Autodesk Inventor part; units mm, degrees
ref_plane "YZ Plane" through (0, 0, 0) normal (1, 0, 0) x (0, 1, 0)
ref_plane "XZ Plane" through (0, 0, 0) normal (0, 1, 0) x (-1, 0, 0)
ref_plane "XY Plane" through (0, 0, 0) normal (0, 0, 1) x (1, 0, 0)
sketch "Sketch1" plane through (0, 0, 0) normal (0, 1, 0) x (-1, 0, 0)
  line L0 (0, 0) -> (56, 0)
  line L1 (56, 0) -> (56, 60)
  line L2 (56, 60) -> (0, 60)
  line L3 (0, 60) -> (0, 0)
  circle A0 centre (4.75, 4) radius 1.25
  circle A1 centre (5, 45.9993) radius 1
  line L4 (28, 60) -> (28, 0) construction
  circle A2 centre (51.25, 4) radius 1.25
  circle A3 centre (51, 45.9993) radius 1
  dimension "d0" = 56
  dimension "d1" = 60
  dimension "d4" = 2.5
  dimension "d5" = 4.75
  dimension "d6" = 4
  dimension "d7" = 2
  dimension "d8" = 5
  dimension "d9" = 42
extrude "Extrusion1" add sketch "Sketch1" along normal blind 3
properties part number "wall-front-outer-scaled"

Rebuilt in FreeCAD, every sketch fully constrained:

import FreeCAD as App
import Part
import Sketcher


def add_polygon(sketch, points):
    """Adds a closed chain of lines whose ends are joined by coincident constraints."""
    first, n = sketch.GeometryCount, len(points)
    for a, b in zip(points, points[1:] + points[:1]):
        sketch.addGeometry(Part.LineSegment(App.Vector(*a, 0), App.Vector(*b, 0)), False)
    for i in range(n):
        sketch.addConstraint(Sketcher.Constraint("Coincident", first + i, 2, first + (i + 1) % n, 1))

doc = App.newDocument("Part")
body = doc.addObject("PartDesign::Body", "Body")

sketch1 = body.newObject("Sketcher::SketchObject", "Sketch")
sketch1.AttachmentSupport = (doc.getObject("XZ_Plane"), [""])
sketch1.MapMode = "FlatFace"
add_polygon(sketch1, [(0, 60), (0, 0), (-56, 0), (-56, 60)])
sketch1.addGeometry(Part.Circle(App.Vector(-4.8, 4, 0), App.Vector(0, 0, 1), 1.2), False)
sketch1.addGeometry(Part.Circle(App.Vector(-51.2, 4, 0), App.Vector(0, 0, 1), 1.2), False)
sketch1.addGeometry(Part.Circle(App.Vector(-5, 46, 0), App.Vector(0, 0, 1), 1), False)
sketch1.addGeometry(Part.Circle(App.Vector(-51, 46, 0), App.Vector(0, 0, 1), 1), False)
sketch1.addConstraint(Sketcher.Constraint("Vertical", 0))
sketch1.addConstraint(Sketcher.Constraint("Horizontal", 1))
sketch1.addConstraint(Sketcher.Constraint("Vertical", 2))
sketch1.addConstraint(Sketcher.Constraint("Horizontal", 3))
sketch1.addConstraint(Sketcher.Constraint("Coincident", 0, 2, -1, 1))
sketch1.addConstraint(Sketcher.Constraint("Equal", 4, 5))
sketch1.addConstraint(Sketcher.Constraint("Equal", 6, 7))
sketch1.addConstraint(Sketcher.Constraint("Horizontal", 4, 3, 5, 3))
sketch1.addConstraint(Sketcher.Constraint("Horizontal", 6, 3, 7, 3))
sketch1.addConstraint(Sketcher.Constraint("Diameter", 6, 2.0))
sketch1.addConstraint(Sketcher.Constraint("Diameter", 4, 2.5))
sketch1.addConstraint(Sketcher.Constraint("DistanceX", 1, 2, 1, 1, 56.0))
sketch1.addConstraint(Sketcher.Constraint("DistanceY", 0, 2, 0, 1, 60.0))
sketch1.addConstraint(Sketcher.Constraint("DistanceY", -1, 1, 4, 3, 4.0))
sketch1.addConstraint(Sketcher.Constraint("DistanceX", 6, 3, -1, 1, 5.0))
sketch1.addConstraint(Sketcher.Constraint("DistanceX", 1, 2, 7, 3, 5.0))
sketch1.addConstraint(Sketcher.Constraint("DistanceX", 4, 3, -1, 1, 4.75))
sketch1.addConstraint(Sketcher.Constraint("DistanceX", 1, 2, 5, 3, 4.75))
sketch1.addConstraint(Sketcher.Constraint("DistanceY", -1, 1, 6, 3, 45.9993))
pad1 = body.newObject("PartDesign::Pad", "Pad")
pad1.Profile = sketch1
pad1.Length = 3
pad1.Reversed = True

doc.recompute()
